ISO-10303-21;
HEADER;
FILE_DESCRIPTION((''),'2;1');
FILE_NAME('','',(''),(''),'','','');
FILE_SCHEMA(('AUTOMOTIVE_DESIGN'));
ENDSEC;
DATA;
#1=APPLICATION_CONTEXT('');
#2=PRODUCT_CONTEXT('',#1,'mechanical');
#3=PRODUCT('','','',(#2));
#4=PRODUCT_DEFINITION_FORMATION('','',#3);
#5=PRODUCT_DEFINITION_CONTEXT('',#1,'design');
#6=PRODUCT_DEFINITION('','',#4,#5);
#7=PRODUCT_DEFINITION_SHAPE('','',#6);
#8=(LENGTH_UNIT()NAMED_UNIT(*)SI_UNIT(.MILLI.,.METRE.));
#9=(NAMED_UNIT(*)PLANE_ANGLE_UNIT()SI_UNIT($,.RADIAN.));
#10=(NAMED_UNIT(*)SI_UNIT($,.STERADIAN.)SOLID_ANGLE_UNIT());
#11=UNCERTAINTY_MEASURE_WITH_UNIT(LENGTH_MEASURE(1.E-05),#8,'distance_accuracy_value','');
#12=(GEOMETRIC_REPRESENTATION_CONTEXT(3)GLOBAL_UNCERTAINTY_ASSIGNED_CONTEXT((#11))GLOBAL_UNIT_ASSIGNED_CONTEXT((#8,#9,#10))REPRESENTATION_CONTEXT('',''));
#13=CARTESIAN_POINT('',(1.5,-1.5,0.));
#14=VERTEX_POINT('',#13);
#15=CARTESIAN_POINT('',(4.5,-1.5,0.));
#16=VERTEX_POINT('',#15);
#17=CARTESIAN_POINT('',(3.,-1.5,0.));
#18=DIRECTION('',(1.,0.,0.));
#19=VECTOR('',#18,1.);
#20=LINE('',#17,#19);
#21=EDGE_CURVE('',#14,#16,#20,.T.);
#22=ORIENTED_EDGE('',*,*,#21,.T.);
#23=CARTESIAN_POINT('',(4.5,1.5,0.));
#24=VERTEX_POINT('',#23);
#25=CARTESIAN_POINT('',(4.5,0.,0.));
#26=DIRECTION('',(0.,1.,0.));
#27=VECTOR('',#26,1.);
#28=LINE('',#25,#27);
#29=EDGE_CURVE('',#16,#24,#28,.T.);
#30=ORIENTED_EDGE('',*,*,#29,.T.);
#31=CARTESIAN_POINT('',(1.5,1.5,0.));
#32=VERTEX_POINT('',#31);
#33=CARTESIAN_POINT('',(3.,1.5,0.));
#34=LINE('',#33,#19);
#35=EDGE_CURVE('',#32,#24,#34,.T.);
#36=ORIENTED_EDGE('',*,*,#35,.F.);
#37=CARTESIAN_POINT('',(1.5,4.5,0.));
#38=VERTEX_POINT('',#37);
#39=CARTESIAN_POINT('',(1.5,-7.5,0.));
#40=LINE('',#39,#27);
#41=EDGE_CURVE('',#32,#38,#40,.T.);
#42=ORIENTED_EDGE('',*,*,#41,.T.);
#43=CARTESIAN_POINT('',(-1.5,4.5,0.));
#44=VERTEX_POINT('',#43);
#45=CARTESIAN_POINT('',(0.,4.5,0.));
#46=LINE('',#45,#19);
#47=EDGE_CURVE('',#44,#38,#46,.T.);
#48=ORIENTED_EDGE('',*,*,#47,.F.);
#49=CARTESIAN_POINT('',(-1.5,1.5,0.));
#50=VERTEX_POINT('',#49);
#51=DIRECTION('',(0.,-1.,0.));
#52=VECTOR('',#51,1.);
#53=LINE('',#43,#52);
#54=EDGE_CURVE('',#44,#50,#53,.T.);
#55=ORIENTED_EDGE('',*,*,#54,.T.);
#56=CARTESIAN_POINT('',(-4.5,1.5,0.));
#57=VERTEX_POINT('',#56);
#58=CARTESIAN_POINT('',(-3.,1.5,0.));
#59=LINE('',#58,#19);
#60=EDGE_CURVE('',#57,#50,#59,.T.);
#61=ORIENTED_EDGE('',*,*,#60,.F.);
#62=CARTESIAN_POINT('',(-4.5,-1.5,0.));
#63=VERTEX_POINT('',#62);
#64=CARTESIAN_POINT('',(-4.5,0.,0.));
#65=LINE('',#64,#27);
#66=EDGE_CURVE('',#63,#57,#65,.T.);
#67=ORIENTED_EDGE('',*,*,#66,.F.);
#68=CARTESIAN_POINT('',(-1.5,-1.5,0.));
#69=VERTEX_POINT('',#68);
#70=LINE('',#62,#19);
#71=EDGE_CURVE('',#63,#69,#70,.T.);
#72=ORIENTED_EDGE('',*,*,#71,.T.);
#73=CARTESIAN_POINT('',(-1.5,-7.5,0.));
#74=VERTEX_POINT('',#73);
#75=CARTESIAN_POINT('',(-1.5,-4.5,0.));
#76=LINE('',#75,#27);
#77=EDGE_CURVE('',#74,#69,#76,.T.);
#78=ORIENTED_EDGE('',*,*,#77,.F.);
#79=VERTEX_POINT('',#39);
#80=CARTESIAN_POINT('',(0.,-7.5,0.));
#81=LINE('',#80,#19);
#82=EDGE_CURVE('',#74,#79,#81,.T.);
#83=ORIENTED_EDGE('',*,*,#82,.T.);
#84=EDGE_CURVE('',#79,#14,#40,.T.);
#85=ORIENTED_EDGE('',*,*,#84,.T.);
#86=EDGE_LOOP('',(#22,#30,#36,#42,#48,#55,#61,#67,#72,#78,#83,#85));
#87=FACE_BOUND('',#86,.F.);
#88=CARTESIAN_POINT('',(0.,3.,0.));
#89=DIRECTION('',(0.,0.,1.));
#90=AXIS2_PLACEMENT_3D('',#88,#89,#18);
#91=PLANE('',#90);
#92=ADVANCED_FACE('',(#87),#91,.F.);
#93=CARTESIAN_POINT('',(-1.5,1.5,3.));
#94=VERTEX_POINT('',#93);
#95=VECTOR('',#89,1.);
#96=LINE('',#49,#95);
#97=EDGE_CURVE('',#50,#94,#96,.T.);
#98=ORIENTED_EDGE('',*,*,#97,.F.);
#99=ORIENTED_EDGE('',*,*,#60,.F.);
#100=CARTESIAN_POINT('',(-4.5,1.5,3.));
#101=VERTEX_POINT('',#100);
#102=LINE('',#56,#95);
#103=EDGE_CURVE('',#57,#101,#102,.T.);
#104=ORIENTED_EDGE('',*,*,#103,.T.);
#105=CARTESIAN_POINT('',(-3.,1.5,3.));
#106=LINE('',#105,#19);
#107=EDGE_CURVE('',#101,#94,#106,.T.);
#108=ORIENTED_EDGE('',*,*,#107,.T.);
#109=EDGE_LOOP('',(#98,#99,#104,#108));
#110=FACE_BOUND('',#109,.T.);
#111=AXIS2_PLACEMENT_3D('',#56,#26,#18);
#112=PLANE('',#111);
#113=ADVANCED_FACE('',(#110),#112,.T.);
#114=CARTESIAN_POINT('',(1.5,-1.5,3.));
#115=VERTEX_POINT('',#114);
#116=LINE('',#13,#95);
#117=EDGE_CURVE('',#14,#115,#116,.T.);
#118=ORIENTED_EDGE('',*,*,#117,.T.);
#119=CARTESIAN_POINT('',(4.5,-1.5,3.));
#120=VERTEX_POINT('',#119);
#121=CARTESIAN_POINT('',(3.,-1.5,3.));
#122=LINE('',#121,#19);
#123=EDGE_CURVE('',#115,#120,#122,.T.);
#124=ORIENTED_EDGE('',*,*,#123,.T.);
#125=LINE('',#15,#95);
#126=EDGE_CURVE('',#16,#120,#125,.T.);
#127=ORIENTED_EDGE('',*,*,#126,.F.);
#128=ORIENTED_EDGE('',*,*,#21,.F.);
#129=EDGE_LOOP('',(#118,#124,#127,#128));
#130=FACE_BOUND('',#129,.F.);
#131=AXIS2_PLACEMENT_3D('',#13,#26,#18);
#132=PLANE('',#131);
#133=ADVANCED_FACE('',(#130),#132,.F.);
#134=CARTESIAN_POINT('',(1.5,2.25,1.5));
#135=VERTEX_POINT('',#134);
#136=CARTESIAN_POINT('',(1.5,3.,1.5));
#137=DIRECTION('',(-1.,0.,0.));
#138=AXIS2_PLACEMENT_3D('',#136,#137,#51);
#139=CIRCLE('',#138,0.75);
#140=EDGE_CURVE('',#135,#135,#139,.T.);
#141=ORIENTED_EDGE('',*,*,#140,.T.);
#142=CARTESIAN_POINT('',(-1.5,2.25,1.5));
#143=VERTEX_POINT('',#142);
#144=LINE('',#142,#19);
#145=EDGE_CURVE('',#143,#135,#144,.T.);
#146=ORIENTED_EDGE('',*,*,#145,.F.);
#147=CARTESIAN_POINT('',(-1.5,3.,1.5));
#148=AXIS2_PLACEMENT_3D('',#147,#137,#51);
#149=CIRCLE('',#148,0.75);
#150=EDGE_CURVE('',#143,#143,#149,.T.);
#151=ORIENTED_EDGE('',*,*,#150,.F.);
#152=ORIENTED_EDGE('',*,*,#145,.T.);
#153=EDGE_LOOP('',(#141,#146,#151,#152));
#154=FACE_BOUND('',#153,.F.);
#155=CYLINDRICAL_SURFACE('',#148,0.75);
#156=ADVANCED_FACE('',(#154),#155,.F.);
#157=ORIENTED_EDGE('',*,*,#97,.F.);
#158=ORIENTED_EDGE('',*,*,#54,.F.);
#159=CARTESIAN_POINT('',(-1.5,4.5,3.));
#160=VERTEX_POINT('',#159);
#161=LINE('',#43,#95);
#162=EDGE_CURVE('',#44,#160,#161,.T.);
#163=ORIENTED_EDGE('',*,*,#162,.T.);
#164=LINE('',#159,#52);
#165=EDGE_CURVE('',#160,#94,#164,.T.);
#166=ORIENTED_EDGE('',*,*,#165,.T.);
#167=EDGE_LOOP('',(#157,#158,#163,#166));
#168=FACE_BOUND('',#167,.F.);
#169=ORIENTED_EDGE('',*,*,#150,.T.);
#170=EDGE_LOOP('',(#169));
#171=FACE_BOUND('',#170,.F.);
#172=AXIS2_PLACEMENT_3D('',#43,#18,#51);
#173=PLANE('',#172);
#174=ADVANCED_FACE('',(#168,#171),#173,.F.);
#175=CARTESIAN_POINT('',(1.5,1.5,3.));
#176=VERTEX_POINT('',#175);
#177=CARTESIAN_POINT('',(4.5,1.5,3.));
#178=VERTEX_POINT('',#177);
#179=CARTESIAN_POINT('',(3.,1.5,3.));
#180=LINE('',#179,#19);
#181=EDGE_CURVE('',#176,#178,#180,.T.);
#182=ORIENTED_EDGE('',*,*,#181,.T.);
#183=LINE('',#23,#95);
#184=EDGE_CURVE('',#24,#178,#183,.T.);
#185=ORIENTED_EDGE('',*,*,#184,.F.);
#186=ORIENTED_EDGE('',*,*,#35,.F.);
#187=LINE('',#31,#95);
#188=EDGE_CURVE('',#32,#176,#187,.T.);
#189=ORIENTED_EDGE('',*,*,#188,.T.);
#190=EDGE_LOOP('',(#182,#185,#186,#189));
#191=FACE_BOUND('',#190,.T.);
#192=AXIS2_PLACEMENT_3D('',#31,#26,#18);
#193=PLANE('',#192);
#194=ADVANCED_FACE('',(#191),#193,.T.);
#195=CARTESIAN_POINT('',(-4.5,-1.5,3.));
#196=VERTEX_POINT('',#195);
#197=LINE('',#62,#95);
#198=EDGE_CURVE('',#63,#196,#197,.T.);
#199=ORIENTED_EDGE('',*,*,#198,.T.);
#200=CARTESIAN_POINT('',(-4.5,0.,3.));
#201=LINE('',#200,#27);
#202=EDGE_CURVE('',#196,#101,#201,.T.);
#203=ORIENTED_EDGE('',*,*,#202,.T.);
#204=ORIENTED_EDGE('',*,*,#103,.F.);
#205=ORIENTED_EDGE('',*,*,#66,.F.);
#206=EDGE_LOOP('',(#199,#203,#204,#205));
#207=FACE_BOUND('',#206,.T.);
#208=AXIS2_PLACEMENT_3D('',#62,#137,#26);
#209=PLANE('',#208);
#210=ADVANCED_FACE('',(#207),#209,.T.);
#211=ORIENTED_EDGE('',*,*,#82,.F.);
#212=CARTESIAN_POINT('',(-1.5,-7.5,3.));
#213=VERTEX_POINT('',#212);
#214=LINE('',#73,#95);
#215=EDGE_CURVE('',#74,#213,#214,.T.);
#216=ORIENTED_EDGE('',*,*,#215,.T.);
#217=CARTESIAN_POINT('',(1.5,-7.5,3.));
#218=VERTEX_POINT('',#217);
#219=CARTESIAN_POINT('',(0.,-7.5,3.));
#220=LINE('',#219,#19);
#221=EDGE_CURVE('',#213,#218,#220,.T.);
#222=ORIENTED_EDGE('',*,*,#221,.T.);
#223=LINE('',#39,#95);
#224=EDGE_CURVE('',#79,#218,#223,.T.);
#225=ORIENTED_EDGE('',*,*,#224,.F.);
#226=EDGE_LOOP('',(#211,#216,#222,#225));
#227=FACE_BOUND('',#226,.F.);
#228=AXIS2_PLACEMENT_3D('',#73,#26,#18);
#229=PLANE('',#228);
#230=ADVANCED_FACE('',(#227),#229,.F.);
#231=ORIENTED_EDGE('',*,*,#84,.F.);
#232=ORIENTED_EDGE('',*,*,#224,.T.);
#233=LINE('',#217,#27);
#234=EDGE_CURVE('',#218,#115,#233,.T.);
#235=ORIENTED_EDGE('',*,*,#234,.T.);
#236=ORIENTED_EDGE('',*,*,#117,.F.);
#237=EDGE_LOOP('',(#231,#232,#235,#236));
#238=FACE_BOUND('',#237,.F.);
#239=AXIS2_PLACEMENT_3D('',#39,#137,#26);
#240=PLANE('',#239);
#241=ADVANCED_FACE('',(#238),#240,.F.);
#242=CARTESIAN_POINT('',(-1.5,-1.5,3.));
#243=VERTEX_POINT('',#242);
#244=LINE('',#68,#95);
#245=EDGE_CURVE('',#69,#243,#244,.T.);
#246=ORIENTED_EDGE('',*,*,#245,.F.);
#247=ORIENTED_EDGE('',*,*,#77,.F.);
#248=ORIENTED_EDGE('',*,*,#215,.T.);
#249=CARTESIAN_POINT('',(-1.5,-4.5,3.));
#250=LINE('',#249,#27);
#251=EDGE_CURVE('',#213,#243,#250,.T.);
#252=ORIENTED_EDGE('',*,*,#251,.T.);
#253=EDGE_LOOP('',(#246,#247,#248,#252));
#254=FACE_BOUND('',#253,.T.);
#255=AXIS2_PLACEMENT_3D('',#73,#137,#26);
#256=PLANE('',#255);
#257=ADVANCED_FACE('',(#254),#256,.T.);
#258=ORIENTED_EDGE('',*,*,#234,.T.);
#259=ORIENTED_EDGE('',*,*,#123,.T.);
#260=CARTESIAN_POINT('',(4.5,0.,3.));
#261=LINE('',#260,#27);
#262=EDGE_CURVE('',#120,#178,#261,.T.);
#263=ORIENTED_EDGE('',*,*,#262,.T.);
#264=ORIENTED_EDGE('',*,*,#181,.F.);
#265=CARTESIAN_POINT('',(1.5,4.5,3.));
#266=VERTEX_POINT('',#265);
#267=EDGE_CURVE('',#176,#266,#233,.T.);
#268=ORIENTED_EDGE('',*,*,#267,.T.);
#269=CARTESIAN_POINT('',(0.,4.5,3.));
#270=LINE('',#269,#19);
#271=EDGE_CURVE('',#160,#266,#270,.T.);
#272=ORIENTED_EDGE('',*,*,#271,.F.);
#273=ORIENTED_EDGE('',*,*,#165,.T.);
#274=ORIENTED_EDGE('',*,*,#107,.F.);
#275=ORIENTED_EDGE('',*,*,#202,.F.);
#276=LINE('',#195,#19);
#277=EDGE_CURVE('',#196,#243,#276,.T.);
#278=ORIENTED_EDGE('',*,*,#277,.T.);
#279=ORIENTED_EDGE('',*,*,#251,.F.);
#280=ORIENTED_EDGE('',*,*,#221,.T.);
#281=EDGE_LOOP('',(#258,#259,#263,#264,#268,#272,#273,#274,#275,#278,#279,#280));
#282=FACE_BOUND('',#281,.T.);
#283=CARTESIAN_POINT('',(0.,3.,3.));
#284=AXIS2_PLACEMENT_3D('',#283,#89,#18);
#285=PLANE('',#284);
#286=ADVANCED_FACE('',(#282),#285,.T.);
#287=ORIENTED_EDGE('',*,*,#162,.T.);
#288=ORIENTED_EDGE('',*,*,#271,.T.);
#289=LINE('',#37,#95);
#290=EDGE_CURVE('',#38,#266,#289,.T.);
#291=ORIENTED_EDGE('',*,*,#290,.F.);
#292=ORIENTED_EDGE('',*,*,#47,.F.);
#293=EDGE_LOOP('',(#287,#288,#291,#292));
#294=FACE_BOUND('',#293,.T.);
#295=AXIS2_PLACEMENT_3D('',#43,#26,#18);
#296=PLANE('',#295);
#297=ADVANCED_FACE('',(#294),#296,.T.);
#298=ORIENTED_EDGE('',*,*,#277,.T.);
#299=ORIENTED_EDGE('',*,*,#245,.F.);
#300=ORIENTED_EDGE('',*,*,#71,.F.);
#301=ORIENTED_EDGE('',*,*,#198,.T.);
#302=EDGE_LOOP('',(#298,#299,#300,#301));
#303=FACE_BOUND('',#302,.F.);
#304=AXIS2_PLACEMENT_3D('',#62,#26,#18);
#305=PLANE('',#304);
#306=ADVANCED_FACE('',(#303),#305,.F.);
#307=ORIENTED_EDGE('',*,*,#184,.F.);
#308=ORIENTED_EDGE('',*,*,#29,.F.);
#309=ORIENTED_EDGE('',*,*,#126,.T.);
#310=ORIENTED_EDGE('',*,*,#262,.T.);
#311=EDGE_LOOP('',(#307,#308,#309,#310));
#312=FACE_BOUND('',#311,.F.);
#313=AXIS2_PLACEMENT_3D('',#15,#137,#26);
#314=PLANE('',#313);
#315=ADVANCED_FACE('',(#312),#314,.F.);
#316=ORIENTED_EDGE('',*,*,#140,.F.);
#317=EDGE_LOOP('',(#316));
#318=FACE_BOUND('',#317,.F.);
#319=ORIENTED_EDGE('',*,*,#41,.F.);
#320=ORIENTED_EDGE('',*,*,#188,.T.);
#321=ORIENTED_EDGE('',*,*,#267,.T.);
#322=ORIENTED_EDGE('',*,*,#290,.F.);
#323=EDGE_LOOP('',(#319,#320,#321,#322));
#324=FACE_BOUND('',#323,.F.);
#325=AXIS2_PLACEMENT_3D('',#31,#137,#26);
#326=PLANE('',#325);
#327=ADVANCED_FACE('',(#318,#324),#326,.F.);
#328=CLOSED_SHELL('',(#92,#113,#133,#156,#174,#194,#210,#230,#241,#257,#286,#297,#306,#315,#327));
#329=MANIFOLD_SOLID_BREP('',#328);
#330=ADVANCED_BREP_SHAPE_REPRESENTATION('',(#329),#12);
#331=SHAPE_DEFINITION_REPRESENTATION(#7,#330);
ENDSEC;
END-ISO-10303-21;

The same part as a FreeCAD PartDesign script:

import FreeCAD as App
import Part
import Sketcher

V = App.Vector

doc = App.newDocument("Part")
body = doc.addObject("PartDesign::Body", "Body")

# Sketch on XY plane
sketch1 = body.newObject("Sketcher::SketchObject", "Sketch")
sketch1.AttachmentSupport = (doc.getObject("XY_Plane"), [""])
sketch1.MapMode = "FlatFace"
sketch1.addGeometry(Part.LineSegment(V(-1.5, 4.5, 0), V(-1.5, 1.5, 0)), False)
sketch1.addGeometry(Part.LineSegment(V(-1.5, 1.5, 0), V(-4.5, 1.5, 0)), False)
sketch1.addGeometry(Part.LineSegment(V(-4.5, 1.5, 0), V(-4.5, -1.5, 0)), False)
sketch1.addGeometry(Part.LineSegment(V(-4.5, -1.5, 0), V(-1.5, -1.5, 0)), False)
sketch1.addGeometry(Part.LineSegment(V(-1.5, -1.5, 0), V(-1.5, -7.5, 0)), False)
sketch1.addGeometry(Part.LineSegment(V(-1.5, -7.5, 0), V(1.5, -7.5, 0)), False)
sketch1.addGeometry(Part.LineSegment(V(1.5, -7.5, 0), V(1.5, -1.5, 0)), False)
sketch1.addGeometry(Part.LineSegment(V(1.5, -1.5, 0), V(4.5, -1.5, 0)), False)
sketch1.addGeometry(Part.LineSegment(V(4.5, -1.5, 0), V(4.5, 1.5, 0)), False)
sketch1.addGeometry(Part.LineSegment(V(4.5, 1.5, 0), V(1.5, 1.5, 0)), False)
sketch1.addGeometry(Part.LineSegment(V(1.5, 1.5, 0), V(1.5, 4.5, 0)), False)
sketch1.addGeometry(Part.LineSegment(V(1.5, 4.5, 0), V(-1.5, 4.5, 0)), False)
sketch1.addConstraint(Sketcher.Constraint("Coincident", 0, 2, 1, 1))
sketch1.addConstraint(Sketcher.Constraint("Coincident", 1, 2, 2, 1))
sketch1.addConstraint(Sketcher.Constraint("Coincident", 2, 2, 3, 1))
sketch1.addConstraint(Sketcher.Constraint("Coincident", 3, 2, 4, 1))
sketch1.addConstraint(Sketcher.Constraint("Coincident", 4, 2, 5, 1))
sketch1.addConstraint(Sketcher.Constraint("Coincident", 5, 2, 6, 1))
sketch1.addConstraint(Sketcher.Constraint("Coincident", 6, 2, 7, 1))
sketch1.addConstraint(Sketcher.Constraint("Coincident", 7, 2, 8, 1))
sketch1.addConstraint(Sketcher.Constraint("Coincident", 8, 2, 9, 1))
sketch1.addConstraint(Sketcher.Constraint("Coincident", 9, 2, 10, 1))
sketch1.addConstraint(Sketcher.Constraint("Coincident", 10, 2, 11, 1))
sketch1.addConstraint(Sketcher.Constraint("Coincident", 11, 2, 0, 1))
sketch1.addConstraint(Sketcher.Constraint("Vertical", 0))
sketch1.addConstraint(Sketcher.Constraint("Horizontal", 1))
sketch1.addConstraint(Sketcher.Constraint("Vertical", 2))
sketch1.addConstraint(Sketcher.Constraint("Horizontal", 3))
sketch1.addConstraint(Sketcher.Constraint("Vertical", 4))
sketch1.addConstraint(Sketcher.Constraint("Horizontal", 5))
sketch1.addConstraint(Sketcher.Constraint("Vertical", 6))
sketch1.addConstraint(Sketcher.Constraint("Horizontal", 7))
sketch1.addConstraint(Sketcher.Constraint("Vertical", 8))
sketch1.addConstraint(Sketcher.Constraint("Horizontal", 9))
sketch1.addConstraint(Sketcher.Constraint("Vertical", 10))
sketch1.addConstraint(Sketcher.Constraint("Horizontal", 11))
sketch1.addConstraint(Sketcher.Constraint("Symmetric", 0, 2, 6, 2, -1, 1))
sketch1.addConstraint(Sketcher.Constraint("Symmetric", 2, 2, 8, 2, -1, 1))
sketch1.addConstraint(Sketcher.Constraint("Symmetric", 3, 2, 6, 2, -2))
sketch1.addConstraint(Sketcher.Constraint("Vertical", 6, 2, 9, 2))
sketch1.addConstraint(Sketcher.Constraint("Equal", 3, 5))
sketch1.addConstraint(Sketcher.Constraint("Equal", 11, 0))
sketch1.addConstraint(Sketcher.Constraint("Equal", 0, 2))
sketch1.addConstraint(Sketcher.Constraint("DistanceX", 1, 2, 1, 1, 3.0))
sketch1.addConstraint(Sketcher.Constraint("DistanceY", 4, 2, 4, 1, 6.0))
pad1 = body.newObject("PartDesign::Pad", "Pad")
pad1.Profile = sketch1
pad1.Length = 3

# Sketch on YZ plane
sketch2 = body.newObject("Sketcher::SketchObject", "Sketch001")
sketch2.AttachmentSupport = (doc.getObject("YZ_Plane"), [""])
sketch2.MapMode = "FlatFace"
sketch2.AttachmentOffset = App.Placement(V(0, 0, -1.5), App.Rotation())
sketch2.addGeometry(Part.Circle(V(3, 1.5, 0), V(0, 0, 1), 0.8), False)
sketch2.addConstraint(Sketcher.Constraint("Diameter", 0, 1.5))
sketch2.addConstraint(Sketcher.Constraint("DistanceX", -1, 1, 0, 3, 3.0))
sketch2.addConstraint(Sketcher.Constraint("DistanceY", -1, 1, 0, 3, 1.5))
pocket1 = body.newObject("PartDesign::Pocket", "Pocket")
pocket1.Profile = sketch2
pocket1.Length = 25
pocket1.Reversed = True

doc.recompute()
